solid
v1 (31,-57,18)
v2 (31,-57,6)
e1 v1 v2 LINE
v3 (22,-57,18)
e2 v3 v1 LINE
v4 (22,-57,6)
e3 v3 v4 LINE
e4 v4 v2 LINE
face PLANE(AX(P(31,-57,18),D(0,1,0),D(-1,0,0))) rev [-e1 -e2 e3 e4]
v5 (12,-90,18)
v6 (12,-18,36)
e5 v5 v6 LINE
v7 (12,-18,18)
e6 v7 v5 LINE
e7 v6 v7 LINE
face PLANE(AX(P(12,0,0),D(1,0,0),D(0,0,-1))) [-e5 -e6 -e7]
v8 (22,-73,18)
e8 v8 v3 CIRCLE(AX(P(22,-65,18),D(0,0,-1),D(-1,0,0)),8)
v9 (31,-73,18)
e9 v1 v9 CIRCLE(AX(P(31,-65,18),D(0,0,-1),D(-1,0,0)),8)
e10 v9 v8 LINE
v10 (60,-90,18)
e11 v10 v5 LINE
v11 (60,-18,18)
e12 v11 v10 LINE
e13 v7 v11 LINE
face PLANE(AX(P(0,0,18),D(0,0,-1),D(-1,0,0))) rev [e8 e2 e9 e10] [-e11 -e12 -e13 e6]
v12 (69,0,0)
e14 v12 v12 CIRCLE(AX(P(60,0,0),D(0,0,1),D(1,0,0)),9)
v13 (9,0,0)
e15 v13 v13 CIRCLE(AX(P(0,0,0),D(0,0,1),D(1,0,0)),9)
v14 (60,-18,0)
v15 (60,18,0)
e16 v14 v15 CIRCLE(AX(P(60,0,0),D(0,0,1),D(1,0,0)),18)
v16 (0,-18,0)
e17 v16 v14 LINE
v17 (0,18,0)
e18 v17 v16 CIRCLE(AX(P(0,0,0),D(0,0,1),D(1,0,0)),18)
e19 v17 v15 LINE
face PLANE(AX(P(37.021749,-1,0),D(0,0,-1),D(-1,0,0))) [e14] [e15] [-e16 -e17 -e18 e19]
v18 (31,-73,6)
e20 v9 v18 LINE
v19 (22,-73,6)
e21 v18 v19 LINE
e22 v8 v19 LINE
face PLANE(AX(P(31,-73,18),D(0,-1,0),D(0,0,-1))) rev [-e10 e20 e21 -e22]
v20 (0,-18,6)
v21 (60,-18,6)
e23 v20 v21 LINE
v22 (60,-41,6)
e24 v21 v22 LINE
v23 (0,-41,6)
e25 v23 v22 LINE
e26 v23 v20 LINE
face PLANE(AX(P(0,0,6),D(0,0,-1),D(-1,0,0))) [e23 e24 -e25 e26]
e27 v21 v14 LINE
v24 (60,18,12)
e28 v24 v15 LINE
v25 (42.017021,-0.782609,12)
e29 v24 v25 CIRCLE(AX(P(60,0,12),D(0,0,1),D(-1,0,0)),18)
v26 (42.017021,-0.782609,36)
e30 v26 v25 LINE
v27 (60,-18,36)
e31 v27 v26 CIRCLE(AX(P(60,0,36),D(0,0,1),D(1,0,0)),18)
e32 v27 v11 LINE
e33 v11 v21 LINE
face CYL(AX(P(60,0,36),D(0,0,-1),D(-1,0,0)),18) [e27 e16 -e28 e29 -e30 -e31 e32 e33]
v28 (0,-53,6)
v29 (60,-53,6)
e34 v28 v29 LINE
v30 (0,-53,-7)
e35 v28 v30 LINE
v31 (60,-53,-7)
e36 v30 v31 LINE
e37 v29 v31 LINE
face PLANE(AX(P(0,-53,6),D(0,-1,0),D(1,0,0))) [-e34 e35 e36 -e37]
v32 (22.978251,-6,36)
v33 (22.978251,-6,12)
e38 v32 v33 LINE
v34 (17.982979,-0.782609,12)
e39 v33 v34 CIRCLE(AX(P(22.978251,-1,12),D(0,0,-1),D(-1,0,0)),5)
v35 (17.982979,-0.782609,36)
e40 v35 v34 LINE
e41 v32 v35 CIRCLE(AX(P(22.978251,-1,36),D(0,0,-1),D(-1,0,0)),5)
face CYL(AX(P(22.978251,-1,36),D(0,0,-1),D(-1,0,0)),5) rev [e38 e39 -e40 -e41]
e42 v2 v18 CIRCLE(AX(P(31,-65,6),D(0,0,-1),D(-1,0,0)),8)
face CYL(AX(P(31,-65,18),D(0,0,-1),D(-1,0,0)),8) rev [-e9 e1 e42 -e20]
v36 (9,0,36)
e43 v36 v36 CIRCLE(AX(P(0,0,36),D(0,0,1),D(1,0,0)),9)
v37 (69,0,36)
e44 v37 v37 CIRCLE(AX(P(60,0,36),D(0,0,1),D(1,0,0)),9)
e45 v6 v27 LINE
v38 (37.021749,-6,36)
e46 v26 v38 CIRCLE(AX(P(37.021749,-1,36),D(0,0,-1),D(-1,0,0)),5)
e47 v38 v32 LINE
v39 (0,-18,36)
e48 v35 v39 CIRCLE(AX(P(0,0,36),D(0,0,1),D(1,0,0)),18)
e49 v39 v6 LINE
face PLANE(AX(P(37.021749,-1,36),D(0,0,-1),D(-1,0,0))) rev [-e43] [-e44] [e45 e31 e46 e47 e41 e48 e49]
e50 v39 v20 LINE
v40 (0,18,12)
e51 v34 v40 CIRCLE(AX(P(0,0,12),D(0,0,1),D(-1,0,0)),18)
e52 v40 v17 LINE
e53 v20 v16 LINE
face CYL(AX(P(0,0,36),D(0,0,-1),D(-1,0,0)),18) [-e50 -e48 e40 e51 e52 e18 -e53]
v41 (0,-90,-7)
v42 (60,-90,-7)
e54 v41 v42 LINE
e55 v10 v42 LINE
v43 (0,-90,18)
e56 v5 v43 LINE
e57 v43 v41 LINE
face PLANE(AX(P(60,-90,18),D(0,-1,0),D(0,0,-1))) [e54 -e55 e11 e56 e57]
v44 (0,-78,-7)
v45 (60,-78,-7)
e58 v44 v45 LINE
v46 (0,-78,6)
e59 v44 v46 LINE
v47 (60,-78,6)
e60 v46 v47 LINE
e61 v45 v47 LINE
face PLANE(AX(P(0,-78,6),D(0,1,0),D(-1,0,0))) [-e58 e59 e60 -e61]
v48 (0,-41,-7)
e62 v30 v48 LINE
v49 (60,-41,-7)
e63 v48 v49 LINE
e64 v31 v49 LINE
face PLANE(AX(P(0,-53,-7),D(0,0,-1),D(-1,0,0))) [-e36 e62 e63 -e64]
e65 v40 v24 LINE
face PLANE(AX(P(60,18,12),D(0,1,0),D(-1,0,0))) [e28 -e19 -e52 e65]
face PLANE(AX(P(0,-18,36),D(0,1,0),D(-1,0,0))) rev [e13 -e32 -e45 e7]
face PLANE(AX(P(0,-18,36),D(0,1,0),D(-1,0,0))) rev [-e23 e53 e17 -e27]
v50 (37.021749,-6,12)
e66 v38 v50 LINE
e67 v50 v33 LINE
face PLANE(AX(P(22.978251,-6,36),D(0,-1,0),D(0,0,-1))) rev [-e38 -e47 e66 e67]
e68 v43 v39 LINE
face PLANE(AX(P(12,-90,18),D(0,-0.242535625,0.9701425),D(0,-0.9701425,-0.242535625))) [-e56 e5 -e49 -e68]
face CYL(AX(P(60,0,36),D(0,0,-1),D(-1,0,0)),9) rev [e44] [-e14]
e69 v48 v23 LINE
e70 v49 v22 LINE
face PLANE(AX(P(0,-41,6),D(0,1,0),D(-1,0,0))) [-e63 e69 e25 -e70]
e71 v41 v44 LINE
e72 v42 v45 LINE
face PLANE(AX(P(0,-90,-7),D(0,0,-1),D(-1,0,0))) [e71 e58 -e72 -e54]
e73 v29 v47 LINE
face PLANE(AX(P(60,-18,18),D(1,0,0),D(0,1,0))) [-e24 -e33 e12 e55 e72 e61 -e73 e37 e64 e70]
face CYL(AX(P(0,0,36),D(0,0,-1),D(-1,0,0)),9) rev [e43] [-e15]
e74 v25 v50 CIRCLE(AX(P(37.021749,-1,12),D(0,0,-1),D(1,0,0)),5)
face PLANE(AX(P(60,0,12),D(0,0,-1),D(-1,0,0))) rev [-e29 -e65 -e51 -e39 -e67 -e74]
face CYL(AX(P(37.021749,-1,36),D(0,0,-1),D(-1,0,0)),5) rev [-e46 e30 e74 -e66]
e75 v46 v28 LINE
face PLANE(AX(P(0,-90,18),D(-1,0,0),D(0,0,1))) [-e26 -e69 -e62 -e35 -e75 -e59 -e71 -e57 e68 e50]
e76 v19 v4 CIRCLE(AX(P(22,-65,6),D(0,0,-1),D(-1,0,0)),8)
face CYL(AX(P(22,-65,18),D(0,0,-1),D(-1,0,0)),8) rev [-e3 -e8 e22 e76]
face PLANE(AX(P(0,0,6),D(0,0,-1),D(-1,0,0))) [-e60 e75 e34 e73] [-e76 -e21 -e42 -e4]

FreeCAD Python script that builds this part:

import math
import FreeCAD as App
import Part
import Sketcher

doc = App.newDocument("Part")
body = doc.addObject("PartDesign::Body", "Body")

# Sketch on XY plane
sketch1 = body.newObject("Sketcher::SketchObject", "Sketch")
sketch1.AttachmentSupport = (doc.getObject("XY_Plane"), [""])
sketch1.MapMode = "FlatFace"
sketch1.addGeometry([
    Part.LineSegment(App.Vector(0, -18, 0), App.Vector(60, -18, 0)),  # 0
    Part.ArcOfCircle(Part.Circle(App.Vector(60, 0, 0), App.Vector(0, 0, 1), 18), math.radians(-90), math.radians(182.491906)),  # 1
    Part.ArcOfCircle(Part.Circle(App.Vector(37.021749, -1, 0), App.Vector(0, 0, 1), 5), math.radians(-90), math.radians(2.491906)),  # 2
    Part.LineSegment(App.Vector(37.021749, -6, 0), App.Vector(22.978251, -6, 0)),  # 3
    Part.ArcOfCircle(Part.Circle(App.Vector(22.978251, -1, 0), App.Vector(0, 0, 1), 5), math.radians(177.508094), math.radians(270)),  # 4
    Part.ArcOfCircle(Part.Circle(App.Vector(0, 0, 0), App.Vector(0, 0, 1), 18), math.radians(-2.491906), math.radians(270)),  # 5
    Part.Circle(App.Vector(0, 0, 0), App.Vector(0, 0, 1), 9),  # 6
    Part.Circle(App.Vector(60, 0, 0), App.Vector(0, 0, 1), 9),  # 7
], False)
sketch1.addConstraint([
    Sketcher.Constraint("Tangent", 0, 2, 1, 1),
    Sketcher.Constraint("Tangent", 1, 2, 2, 2),
    Sketcher.Constraint("Tangent", 2, 1, 3, 1),
    Sketcher.Constraint("Tangent", 3, 2, 4, 2),
    Sketcher.Constraint("Tangent", 4, 1, 5, 1),
    Sketcher.Constraint("Tangent", 5, 2, 0, 1),
    Sketcher.Constraint("Horizontal", 0),
    Sketcher.Constraint("Horizontal", 3),
    Sketcher.Constraint("Coincident", 5, 3, -1, 1),
    Sketcher.Constraint("Coincident", 6, 3, -1, 1),
    Sketcher.Constraint("Coincident", 7, 3, 1, 3),
    Sketcher.Constraint("Equal", 2, 4),
    Sketcher.Constraint("Equal", 1, 5),
    Sketcher.Constraint("Equal", 6, 7),
    Sketcher.Constraint("Diameter", 6, 18.0),
    Sketcher.Constraint("Radius", 1, 18.0),
    Sketcher.Constraint("Radius", 2, 5.0),
    Sketcher.Constraint("DistanceX", 0, 1, 0, 2, 60.0),
    Sketcher.Constraint("DistanceY", 2, 3, -1, 1, 1.0),
])
pad1 = body.newObject("PartDesign::Pad", "Pad")
pad1.Profile = sketch1
pad1.Length = 36

# Sketch on XY plane
sketch2 = body.newObject("Sketcher::SketchObject", "Sketch001")
sketch2.AttachmentSupport = (doc.getObject("XY_Plane"), [""])
sketch2.MapMode = "FlatFace"
sketch2.addGeometry([
    Part.LineSegment(App.Vector(0, 18, 0), App.Vector(60, 18, 0)),  # 0
    Part.ArcOfCircle(Part.Circle(App.Vector(60, 0, 0), App.Vector(0, 0, 1), 18), math.radians(90), math.radians(182.491906)),  # 1
    Part.ArcOfCircle(Part.Circle(App.Vector(37.021749, -1, 0), App.Vector(0, 0, 1), 5), math.radians(-90), math.radians(2.491906)),  # 2
    Part.LineSegment(App.Vector(37.021749, -6, 0), App.Vector(22.978251, -6, 0)),  # 3
    Part.ArcOfCircle(Part.Circle(App.Vector(22.978251, -1, 0), App.Vector(0, 0, 1), 5), math.radians(177.508094), math.radians(270)),  # 4
    Part.ArcOfCircle(Part.Circle(App.Vector(0, 0, 0), App.Vector(0, 0, 1), 18), math.radians(-2.491906), math.radians(90)),  # 5
], False)
sketch2.addConstraint([
    Sketcher.Constraint("Tangent", 0, 2, 1, 1),
    Sketcher.Constraint("Tangent", 1, 2, 2, 2),
    Sketcher.Constraint("Tangent", 2, 1, 3, 1),
    Sketcher.Constraint("Tangent", 3, 2, 4, 2),
    Sketcher.Constraint("Tangent", 4, 1, 5, 1),
    Sketcher.Constraint("Tangent", 5, 2, 0, 1),
    Sketcher.Constraint("Horizontal", 0),
    Sketcher.Constraint("Horizontal", 3),
    Sketcher.Constraint("Coincident", 5, 3, -1, 1),
    Sketcher.Constraint("Equal", 2, 4),
    Sketcher.Constraint("Equal", 1, 5),
    Sketcher.Constraint("Radius", 1, 18.0),
    Sketcher.Constraint("Radius", 2, 5.0),
    Sketcher.Constraint("DistanceX", 0, 1, 0, 2, 60.0),
    Sketcher.Constraint("DistanceY", 2, 3, -1, 1, 1.0),
])
pad2 = body.newObject("PartDesign::Pad", "Pad001")
pad2.Profile = sketch2
pad2.Length = 12

# Sketch on XY plane
sketch3 = body.newObject("Sketcher::SketchObject", "Sketch002")
sketch3.AttachmentSupport = (doc.getObject("XY_Plane"), [""])
sketch3.MapMode = "FlatFace"
sketch3.AttachmentOffset = App.Placement(App.Vector(0, 0, 6), App.Rotation())
sketch3.addGeometry([
    Part.LineSegment(App.Vector(60, -18, 0), App.Vector(60, -90, 0)),  # 0
    Part.LineSegment(App.Vector(60, -90, 0), App.Vector(0, -90, 0)),  # 1
    Part.LineSegment(App.Vector(0, -90, 0), App.Vector(0, -18, 0)),  # 2
    Part.LineSegment(App.Vector(0, -18, 0), App.Vector(60, -18, 0)),  # 3
    Part.ArcOfCircle(Part.Circle(App.Vector(31, -65, 0), App.Vector(0, 0, 1), 8), math.radians(-90), math.radians(90)),  # 4
    Part.LineSegment(App.Vector(31, -57, 0), App.Vector(22, -57, 0)),  # 5
    Part.ArcOfCircle(Part.Circle(App.Vector(22, -65, 0), App.Vector(0, 0, 1), 8), math.radians(90), math.radians(270)),  # 6
    Part.LineSegment(App.Vector(22, -73, 0), App.Vector(31, -73, 0)),  # 7
], False)
sketch3.addConstraint([
    Sketcher.Constraint("Coincident", 0, 2, 1, 1),
    Sketcher.Constraint("Coincident", 1, 2, 2, 1),
    Sketcher.Constraint("Coincident", 2, 2, 3, 1),
    Sketcher.Constraint("Coincident", 3, 2, 0, 1),
    Sketcher.Constraint("Tangent", 4, 2, 5, 1),
    Sketcher.Constraint("Tangent", 5, 2, 6, 1),
    Sketcher.Constraint("Tangent", 6, 2, 7, 1),
    Sketcher.Constraint("Tangent", 7, 2, 4, 1),
    Sketcher.Constraint("Vertical", 0),
    Sketcher.Constraint("Horizontal", 1),
    Sketcher.Constraint("Vertical", 2),
    Sketcher.Constraint("Horizontal", 3),
    Sketcher.Constraint("Horizontal", 5),
    Sketcher.Constraint("Horizontal", 7),
    Sketcher.Constraint("PointOnObject", 1, 2, -2),
    Sketcher.Constraint("Radius", 4, 8.0),
    Sketcher.Constraint("DistanceX", 1, 2, 1, 1, 60.0),
    Sketcher.Constraint("DistanceX", 5, 2, 5, 1, 9.0),
    Sketcher.Constraint("DistanceY", 0, 2, 0, 1, 72.0),
    Sketcher.Constraint("DistanceX", -1, 1, 4, 3, 31.0),
    Sketcher.Constraint("DistanceY", 4, 3, -1, 1, 65.0),
    Sketcher.Constraint("DistanceY", 0, 2, -1, 1, 90.0),
])
pad3 = body.newObject("PartDesign::Pad", "Pad002")
pad3.Profile = sketch3
pad3.Length = 12

# Sketch on YZ plane
sketch4 = body.newObject("Sketcher::SketchObject", "Sketch003")
sketch4.AttachmentSupport = (doc.getObject("YZ_Plane"), [""])
sketch4.MapMode = "FlatFace"
sketch4.AttachmentOffset = App.Placement(App.Vector(0, 0, 60), App.Rotation())
sketch4.addGeometry([
    Part.LineSegment(App.Vector(-41, 6, 0), App.Vector(-53, 6, 0)),  # 0
    Part.LineSegment(App.Vector(-53, 6, 0), App.Vector(-53, -7, 0)),  # 1
    Part.LineSegment(App.Vector(-53, -7, 0), App.Vector(-41, -7, 0)),  # 2
    Part.LineSegment(App.Vector(-41, -7, 0), App.Vector(-41, 6, 0)),  # 3
    Part.LineSegment(App.Vector(-78, 6, 0), App.Vector(-90, 6, 0)),  # 4
    Part.LineSegment(App.Vector(-90, 6, 0), App.Vector(-90, -7, 0)),  # 5
    Part.LineSegment(App.Vector(-90, -7, 0), App.Vector(-78, -7, 0)),  # 6
    Part.LineSegment(App.Vector(-78, -7, 0), App.Vector(-78, 6, 0)),  # 7
], False)
sketch4.addConstraint([
    Sketcher.Constraint("Coincident", 0, 2, 1, 1),
    Sketcher.Constraint("Coincident", 1, 2, 2, 1),
    Sketcher.Constraint("Coincident", 2, 2, 3, 1),
    Sketcher.Constraint("Coincident", 3, 2, 0, 1),
    Sketcher.Constraint("Coincident", 4, 2, 5, 1),
    Sketcher.Constraint("Coincident", 5, 2, 6, 1),
    Sketcher.Constraint("Coincident", 6, 2, 7, 1),
    Sketcher.Constraint("Coincident", 7, 2, 4, 1),
    Sketcher.Constraint("Horizontal", 0),
    Sketcher.Constraint("Vertical", 1),
    Sketcher.Constraint("Horizontal", 2),
    Sketcher.Constraint("Vertical", 3),
    Sketcher.Constraint("Horizontal", 4),
    Sketcher.Constraint("Vertical", 5),
    Sketcher.Constraint("Horizontal", 6),
    Sketcher.Constraint("Vertical", 7),
    Sketcher.Constraint("Horizontal", 3, 2, 4, 2),
    Sketcher.Constraint("Horizontal", 2, 2, 5, 2),
    Sketcher.Constraint("Equal", 2, 4),
    Sketcher.Constraint("DistanceX", 0, 2, 0, 1, 12.0),
    Sketcher.Constraint("DistanceY", 1, 2, 1, 1, 13.0),
    Sketcher.Constraint("DistanceX", 0, 2, -1, 1, 53.0),
    Sketcher.Constraint("DistanceY", -1, 1, 0, 2, 6.0),
    Sketcher.Constraint("DistanceX", 4, 2, -1, 1, 90.0),
])
pad4 = body.newObject("PartDesign::Pad", "Pad003")
pad4.Profile = sketch4
pad4.Length = 60
pad4.Reversed = True

# Sketch on YZ plane
sketch5 = body.newObject("Sketcher::SketchObject", "Sketch004")
sketch5.AttachmentSupport = (doc.getObject("YZ_Plane"), [""])
sketch5.MapMode = "FlatFace"
sketch5.addGeometry([
    Part.LineSegment(App.Vector(-90, 18, 0), App.Vector(-18, 36, 0)),
    Part.LineSegment(App.Vector(-18, 36, 0), App.Vector(-18, 18, 0)),
    Part.LineSegment(App.Vector(-18, 18, 0), App.Vector(-90, 18, 0)),
], False)
sketch5.addConstraint([
    Sketcher.Constraint("Coincident", 0, 2, 1, 1),
    Sketcher.Constraint("Coincident", 1, 2, 2, 1),
    Sketcher.Constraint("Coincident", 2, 2, 0, 1),
    Sketcher.Constraint("Vertical", 1),
    Sketcher.Constraint("Horizontal", 2),
    Sketcher.Constraint("DistanceX", 2, 2, 2, 1, 72.0),
    Sketcher.Constraint("DistanceY", 1, 2, 1, 1, 18.0),
    Sketcher.Constraint("DistanceX", 0, 2, -1, 1, 18.0),
    Sketcher.Constraint("DistanceY", -1, 1, 0, 2, 36.0),
])
pad5 = body.newObject("PartDesign::Pad", "Pad004")
pad5.Profile = sketch5
pad5.Length = 12

doc.recompute()
